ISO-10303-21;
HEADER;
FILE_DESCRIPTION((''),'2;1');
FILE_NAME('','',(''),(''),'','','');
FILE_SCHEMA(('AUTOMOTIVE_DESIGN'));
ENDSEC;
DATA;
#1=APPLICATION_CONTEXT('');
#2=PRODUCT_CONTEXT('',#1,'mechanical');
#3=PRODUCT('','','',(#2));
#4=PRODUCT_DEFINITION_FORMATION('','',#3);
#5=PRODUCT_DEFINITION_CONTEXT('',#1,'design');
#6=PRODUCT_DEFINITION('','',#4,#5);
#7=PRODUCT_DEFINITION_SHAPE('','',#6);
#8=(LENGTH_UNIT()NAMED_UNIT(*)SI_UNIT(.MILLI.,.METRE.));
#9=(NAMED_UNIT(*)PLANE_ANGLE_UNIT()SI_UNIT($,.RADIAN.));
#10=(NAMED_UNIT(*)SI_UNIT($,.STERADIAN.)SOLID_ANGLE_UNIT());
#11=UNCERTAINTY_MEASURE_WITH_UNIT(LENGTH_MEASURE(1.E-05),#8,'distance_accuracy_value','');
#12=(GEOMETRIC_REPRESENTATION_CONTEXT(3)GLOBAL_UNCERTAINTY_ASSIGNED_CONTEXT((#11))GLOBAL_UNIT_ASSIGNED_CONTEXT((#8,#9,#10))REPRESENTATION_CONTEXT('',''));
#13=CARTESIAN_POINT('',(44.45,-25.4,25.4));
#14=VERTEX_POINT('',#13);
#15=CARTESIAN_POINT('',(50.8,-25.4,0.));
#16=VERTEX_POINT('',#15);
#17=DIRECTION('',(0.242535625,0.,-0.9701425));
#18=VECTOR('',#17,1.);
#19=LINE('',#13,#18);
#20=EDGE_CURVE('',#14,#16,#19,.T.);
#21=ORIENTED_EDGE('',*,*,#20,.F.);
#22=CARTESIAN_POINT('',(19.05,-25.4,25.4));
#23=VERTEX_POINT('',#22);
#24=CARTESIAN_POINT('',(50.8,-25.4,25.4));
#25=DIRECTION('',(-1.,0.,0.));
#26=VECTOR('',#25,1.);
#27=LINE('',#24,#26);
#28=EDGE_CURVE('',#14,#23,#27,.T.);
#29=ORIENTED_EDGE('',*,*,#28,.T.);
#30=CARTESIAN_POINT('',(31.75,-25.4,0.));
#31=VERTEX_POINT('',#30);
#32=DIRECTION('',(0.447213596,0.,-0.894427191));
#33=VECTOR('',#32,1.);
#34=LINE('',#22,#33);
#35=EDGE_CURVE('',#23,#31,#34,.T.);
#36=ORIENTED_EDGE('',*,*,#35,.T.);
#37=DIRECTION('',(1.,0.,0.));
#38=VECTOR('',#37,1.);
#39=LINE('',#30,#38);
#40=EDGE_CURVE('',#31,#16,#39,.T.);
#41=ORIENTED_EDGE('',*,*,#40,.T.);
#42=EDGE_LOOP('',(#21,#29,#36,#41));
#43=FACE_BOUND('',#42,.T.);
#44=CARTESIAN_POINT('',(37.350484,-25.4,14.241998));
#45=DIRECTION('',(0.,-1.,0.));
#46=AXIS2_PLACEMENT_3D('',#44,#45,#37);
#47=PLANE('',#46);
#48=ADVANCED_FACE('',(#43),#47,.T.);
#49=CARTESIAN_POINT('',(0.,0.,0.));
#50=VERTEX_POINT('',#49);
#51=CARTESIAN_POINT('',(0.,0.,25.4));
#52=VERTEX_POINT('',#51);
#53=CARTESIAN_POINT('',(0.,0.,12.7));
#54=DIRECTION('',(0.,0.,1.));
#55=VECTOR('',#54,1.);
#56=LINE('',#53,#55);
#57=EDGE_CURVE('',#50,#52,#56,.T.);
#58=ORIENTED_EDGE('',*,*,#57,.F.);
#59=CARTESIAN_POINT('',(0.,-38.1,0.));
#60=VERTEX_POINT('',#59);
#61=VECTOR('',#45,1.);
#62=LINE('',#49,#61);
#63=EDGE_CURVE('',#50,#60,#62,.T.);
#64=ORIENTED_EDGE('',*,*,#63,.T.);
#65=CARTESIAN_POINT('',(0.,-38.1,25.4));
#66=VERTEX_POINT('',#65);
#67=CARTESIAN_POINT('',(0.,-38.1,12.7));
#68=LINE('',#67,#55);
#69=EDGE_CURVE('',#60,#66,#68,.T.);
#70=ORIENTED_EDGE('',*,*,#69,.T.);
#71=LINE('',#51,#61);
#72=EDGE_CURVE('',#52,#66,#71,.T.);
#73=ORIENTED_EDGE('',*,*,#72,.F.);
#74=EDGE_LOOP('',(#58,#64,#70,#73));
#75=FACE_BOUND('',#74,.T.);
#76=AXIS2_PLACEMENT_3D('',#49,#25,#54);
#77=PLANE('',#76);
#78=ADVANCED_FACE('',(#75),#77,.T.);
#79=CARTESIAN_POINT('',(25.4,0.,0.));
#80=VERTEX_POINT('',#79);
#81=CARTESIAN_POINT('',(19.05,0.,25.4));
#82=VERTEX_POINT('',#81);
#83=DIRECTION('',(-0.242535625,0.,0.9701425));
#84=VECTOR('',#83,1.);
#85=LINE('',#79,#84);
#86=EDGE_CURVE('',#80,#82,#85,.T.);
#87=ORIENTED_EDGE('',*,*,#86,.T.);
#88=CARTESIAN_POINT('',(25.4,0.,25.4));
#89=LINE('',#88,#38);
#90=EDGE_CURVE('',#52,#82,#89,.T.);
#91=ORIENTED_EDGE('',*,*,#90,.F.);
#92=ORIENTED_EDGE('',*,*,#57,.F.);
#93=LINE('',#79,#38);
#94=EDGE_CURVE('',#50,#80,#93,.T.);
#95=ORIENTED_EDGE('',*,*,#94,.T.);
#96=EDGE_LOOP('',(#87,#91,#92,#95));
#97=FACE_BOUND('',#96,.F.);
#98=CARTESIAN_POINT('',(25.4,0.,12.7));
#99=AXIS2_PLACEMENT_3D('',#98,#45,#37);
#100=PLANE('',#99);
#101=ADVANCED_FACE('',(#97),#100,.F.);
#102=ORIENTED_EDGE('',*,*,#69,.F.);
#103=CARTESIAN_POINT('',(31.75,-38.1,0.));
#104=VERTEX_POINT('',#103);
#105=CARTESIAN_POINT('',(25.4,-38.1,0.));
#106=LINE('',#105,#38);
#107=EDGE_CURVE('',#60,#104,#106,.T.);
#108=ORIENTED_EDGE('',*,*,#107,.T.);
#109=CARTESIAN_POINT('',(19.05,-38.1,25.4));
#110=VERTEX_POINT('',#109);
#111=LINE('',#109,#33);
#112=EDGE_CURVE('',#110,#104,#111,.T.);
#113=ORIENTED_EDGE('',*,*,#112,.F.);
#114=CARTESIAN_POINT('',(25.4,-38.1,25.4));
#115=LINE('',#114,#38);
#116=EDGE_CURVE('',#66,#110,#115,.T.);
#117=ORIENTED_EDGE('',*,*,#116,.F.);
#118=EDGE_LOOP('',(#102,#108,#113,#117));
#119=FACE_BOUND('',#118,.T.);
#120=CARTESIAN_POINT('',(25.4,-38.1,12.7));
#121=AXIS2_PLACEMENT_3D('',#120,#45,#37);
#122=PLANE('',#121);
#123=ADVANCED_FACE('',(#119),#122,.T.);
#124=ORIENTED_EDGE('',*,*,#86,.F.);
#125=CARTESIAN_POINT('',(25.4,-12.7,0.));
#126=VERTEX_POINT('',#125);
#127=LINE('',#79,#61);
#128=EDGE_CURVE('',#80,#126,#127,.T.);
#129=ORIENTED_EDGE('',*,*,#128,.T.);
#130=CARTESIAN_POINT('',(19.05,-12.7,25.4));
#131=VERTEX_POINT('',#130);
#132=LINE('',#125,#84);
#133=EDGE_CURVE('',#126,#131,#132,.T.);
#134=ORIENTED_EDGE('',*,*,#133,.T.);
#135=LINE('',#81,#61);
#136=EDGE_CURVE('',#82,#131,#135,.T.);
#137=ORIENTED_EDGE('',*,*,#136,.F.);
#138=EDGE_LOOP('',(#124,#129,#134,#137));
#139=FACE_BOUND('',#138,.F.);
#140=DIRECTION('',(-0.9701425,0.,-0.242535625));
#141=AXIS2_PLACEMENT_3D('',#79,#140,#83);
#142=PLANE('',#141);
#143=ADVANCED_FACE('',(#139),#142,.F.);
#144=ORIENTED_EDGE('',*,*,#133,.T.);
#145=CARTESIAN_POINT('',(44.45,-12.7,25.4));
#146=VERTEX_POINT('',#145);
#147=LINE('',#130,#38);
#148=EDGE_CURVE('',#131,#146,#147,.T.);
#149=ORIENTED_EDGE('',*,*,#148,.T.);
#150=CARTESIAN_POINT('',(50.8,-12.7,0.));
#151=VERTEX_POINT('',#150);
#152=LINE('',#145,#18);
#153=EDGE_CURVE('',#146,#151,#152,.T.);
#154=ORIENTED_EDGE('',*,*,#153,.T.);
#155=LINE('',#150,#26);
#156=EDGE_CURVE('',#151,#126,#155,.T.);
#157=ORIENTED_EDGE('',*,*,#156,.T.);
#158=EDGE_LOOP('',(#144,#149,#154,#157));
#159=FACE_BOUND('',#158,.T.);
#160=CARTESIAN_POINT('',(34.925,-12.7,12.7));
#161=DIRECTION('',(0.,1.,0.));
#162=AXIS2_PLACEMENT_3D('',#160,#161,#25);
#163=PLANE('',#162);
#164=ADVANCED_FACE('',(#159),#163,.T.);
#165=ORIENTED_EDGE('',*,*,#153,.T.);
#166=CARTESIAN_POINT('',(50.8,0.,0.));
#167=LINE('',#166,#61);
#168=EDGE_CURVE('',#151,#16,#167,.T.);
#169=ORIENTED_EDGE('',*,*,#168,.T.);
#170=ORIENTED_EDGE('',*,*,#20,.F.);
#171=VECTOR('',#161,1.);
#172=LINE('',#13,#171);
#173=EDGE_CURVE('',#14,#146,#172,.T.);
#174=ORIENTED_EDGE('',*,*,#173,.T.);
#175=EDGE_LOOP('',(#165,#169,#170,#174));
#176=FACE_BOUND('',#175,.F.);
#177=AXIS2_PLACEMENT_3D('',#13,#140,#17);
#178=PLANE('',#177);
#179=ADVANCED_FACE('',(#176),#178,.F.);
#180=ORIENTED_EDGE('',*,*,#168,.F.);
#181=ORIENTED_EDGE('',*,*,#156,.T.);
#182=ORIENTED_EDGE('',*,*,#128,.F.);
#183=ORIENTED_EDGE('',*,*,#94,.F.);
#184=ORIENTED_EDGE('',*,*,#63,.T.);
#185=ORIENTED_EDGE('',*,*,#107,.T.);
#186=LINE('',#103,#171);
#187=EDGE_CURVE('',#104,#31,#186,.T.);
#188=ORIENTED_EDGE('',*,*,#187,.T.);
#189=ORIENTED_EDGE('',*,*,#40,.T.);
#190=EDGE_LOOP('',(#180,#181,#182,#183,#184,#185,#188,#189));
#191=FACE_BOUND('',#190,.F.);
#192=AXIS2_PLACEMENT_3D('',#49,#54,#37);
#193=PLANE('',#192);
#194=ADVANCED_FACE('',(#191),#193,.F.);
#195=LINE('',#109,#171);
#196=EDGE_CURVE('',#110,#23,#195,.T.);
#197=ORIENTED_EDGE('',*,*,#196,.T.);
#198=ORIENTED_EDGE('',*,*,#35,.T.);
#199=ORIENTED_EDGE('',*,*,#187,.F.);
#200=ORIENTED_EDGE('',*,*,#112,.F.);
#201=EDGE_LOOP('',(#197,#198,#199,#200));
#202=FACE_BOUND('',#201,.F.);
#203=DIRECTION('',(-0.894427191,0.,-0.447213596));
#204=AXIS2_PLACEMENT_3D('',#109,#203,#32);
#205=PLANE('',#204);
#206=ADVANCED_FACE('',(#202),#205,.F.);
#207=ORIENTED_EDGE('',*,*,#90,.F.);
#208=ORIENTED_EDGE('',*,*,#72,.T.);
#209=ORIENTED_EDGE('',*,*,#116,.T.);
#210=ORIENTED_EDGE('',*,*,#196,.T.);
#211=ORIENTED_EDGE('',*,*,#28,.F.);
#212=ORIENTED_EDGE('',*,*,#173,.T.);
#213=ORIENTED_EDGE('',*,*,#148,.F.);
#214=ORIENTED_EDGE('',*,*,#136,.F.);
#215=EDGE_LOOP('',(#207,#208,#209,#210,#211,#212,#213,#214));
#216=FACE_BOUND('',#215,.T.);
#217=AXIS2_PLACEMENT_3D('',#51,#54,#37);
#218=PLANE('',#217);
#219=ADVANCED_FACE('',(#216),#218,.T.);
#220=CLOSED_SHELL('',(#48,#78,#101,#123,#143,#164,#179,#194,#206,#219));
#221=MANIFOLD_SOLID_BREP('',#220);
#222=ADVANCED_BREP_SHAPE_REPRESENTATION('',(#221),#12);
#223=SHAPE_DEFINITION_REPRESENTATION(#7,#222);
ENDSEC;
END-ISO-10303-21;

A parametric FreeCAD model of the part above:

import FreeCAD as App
import Part
import Sketcher
Q = App.Units.Quantity


def add_polygon(sketch, points):
    """Adds a closed chain of lines whose ends are joined by coincident constraints."""
    first, n = sketch.GeometryCount, len(points)
    for a, b in zip(points, points[1:] + points[:1]):
        sketch.addGeometry(Part.LineSegment(App.Vector(*a, 0), App.Vector(*b, 0)), False)
    for i in range(n):
        sketch.addConstraint(Sketcher.Constraint("Coincident", first + i, 2, first + (i + 1) % n, 1))

doc = App.newDocument("Part")
body = doc.addObject("PartDesign::Body", "Body")

sketch1 = body.newObject("Sketcher::SketchObject", "Sketch")
sketch1.AttachmentSupport = (doc.getObject("XZ_Plane"), [""])
sketch1.MapMode = "FlatFace"
add_polygon(sketch1, [(0, 25), (0, 0), (51, 0), (51, 25)])
sketch1.addConstraint(Sketcher.Constraint("Vertical", 0))
sketch1.addConstraint(Sketcher.Constraint("Horizontal", 1))
sketch1.addConstraint(Sketcher.Constraint("Vertical", 2))
sketch1.addConstraint(Sketcher.Constraint("Horizontal", 3))
sketch1.addConstraint(Sketcher.Constraint("Coincident", 0, 2, -1, 1))
sketch1.addConstraint(Sketcher.Constraint("DistanceX", 1, 1, 1, 2, Q("2 in")))
sketch1.addConstraint(Sketcher.Constraint("DistanceY", 0, 2, 0, 1, Q("1 in")))
pad1 = body.newObject("PartDesign::Pad", "Pad")
pad1.Profile = sketch1
pad1.Length = Q("1.5 in")

sketch2 = body.newObject("Sketcher::SketchObject", "Sketch001")
sketch2.AttachmentSupport = (doc.getObject("XZ_Plane"), [""])
sketch2.MapMode = "FlatFace"
sketch2.AttachmentOffset = App.Placement(App.Vector(0, 0, 1.5 * 25.4), App.Rotation())
add_polygon(sketch2, [(19, 25), (32, 0), (51, 0), (51, 25)])
sketch2.addConstraint(Sketcher.Constraint("Horizontal", 1))
sketch2.addConstraint(Sketcher.Constraint("Vertical", 2))
sketch2.addConstraint(Sketcher.Constraint("Horizontal", 3))
sketch2.addConstraint(Sketcher.Constraint("PointOnObject", 0, 2, -1))
sketch2.addConstraint(Sketcher.Constraint("DistanceY", 2, 1, 2, 2, Q("1 in")))
sketch2.addConstraint(Sketcher.Constraint("DistanceX", -1, 1, 1, 2, Q("2 in")))
sketch2.addConstraint(Sketcher.Constraint("DistanceX", 1, 1, 1, 2, Q("0.75 in")))
sketch2.addConstraint(Sketcher.Constraint("DistanceX", 3, 2, 3, 1, Q("1.25 in")))
pocket1 = body.newObject("PartDesign::Pocket", "Pocket")
pocket1.Profile = sketch2
pocket1.Length = Q("0.5 in")

sketch3 = body.newObject("Sketcher::SketchObject", "Sketch002")
sketch3.AttachmentSupport = (doc.getObject("XZ_Plane"), [""])
sketch3.MapMode = "FlatFace"
sketch3.AttachmentOffset = App.Placement(App.Vector(0, 0, 1 * 25.4), App.Rotation())
add_polygon(sketch3, [(51, 25), (44, 25), (51, 0)])
sketch3.addConstraint(Sketcher.Constraint("Horizontal", 0))
sketch3.addConstraint(Sketcher.Constraint("Vertical", 2))
sketch3.addConstraint(Sketcher.Constraint("PointOnObject", 1, 2, -1))
sketch3.addConstraint(Sketcher.Constraint("DistanceY", 2, 1, 2, 2, Q("1 in")))
sketch3.addConstraint(Sketcher.Constraint("DistanceX", -1, 1, 1, 2, Q("2 in")))
sketch3.addConstraint(Sketcher.Constraint("DistanceX", 0, 2, 0, 1, Q("0.25 in")))
pocket2 = body.newObject("PartDesign::Pocket", "Pocket001")
pocket2.Profile = sketch3
pocket2.Length = Q("1 in")

sketch4 = body.newObject("Sketcher::SketchObject", "Sketch003")
sketch4.AttachmentSupport = (doc.getObject("XZ_Plane"), [""])
sketch4.MapMode = "FlatFace"
add_polygon(sketch4, [(51, 0), (25, 0), (19, 25), (44, 25)])
sketch4.addConstraint(Sketcher.Constraint("Horizontal", 0))
sketch4.addConstraint(Sketcher.Constraint("Horizontal", 2))
sketch4.addConstraint(Sketcher.Constraint("PointOnObject", 0, 2, -1))
sketch4.addConstraint(Sketcher.Constraint("Parallel", 1, 3))
sketch4.addConstraint(Sketcher.Constraint("DistanceX", 0, 2, 0, 1, Q("1 in")))
sketch4.addConstraint(Sketcher.Constraint("DistanceX", -1, 1, 0, 2, Q("1 in")))
sketch4.addConstraint(Sketcher.Constraint("DistanceY", -1, 1, 1, 2, Q("1 in")))
sketch4.addConstraint(Sketcher.Constraint("DistanceX", -1, 1, 1, 2, Q("0.75 in")))
pocket3 = body.newObject("PartDesign::Pocket", "Pocket002")
pocket3.Profile = sketch4
pocket3.Length = Q("0.5 in")
pocket3.Reversed = True

doc.recompute()
